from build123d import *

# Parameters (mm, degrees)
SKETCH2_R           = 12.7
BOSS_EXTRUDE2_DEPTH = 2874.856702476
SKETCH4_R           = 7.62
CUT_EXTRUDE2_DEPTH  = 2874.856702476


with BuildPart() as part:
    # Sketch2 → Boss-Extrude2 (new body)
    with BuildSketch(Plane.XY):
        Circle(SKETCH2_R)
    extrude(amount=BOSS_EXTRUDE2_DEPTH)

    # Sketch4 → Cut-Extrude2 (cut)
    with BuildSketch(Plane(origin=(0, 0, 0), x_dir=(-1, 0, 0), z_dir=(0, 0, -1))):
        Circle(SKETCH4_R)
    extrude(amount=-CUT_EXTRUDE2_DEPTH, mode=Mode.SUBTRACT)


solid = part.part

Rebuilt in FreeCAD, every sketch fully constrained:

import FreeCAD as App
import Part
import Sketcher
from FreeCAD import Vector
Q = App.Units.Quantity

doc = App.newDocument("Part")
params = doc.addObject("Spreadsheet::Sheet", "Params")
for row, (alias, value) in enumerate([
    ("sketch1_diameter", "1 in"),
    ("pad1_length", "2874.856702 mm"),
    ("sketch2_diameter", "0.6 in"),
    ("pocket1_length", "2874.856702 mm"),
], start=1):
    params.set(f"A{row}", alias)
    params.set(f"B{row}", "=" + value)
    params.setAlias(f"B{row}", alias)

body = doc.addObject("PartDesign::Body", "Body")

sketch1 = body.newObject("Sketcher::SketchObject", "Sketch")
sketch1.AttachmentSupport = (doc.getObject("XY_Plane"), [""])
sketch1.MapMode = "FlatFace"
sketch1.addGeometry(Part.Circle(Vector(0, 0, 0), Vector(0, 0, 1), 13), False)
sketch1.addConstraint([
    Sketcher.Constraint("Coincident", 0, 3, -1, 1),
    Sketcher.Constraint("Diameter", 0, Q("1 in")),
])
sketch1.setExpression("Constraints[1]", "Params.sketch1_diameter")
pad1 = body.newObject("PartDesign::Pad", "Pad")
pad1.Profile = sketch1
pad1.setExpression("Length", "Params.pad1_length")

sketch2 = body.newObject("Sketcher::SketchObject", "Sketch001")
sketch2.AttachmentSupport = (doc.getObject("XY_Plane"), [""])
sketch2.MapMode = "FlatFace"
sketch2.addGeometry(Part.Circle(Vector(0, 0, 0), Vector(0, 0, 1), 8), False)
sketch2.addConstraint([
    Sketcher.Constraint("Coincident", 0, 3, -1, 1),
    Sketcher.Constraint("Diameter", 0, Q("0.6 in")),
])
sketch2.setExpression("Constraints[1]", "Params.sketch2_diameter")
pocket1 = body.newObject("PartDesign::Pocket", "Pocket")
pocket1.Profile = sketch2
pocket1.setExpression("Length", "Params.pocket1_length")
pocket1.Reversed = True

doc.recompute()
